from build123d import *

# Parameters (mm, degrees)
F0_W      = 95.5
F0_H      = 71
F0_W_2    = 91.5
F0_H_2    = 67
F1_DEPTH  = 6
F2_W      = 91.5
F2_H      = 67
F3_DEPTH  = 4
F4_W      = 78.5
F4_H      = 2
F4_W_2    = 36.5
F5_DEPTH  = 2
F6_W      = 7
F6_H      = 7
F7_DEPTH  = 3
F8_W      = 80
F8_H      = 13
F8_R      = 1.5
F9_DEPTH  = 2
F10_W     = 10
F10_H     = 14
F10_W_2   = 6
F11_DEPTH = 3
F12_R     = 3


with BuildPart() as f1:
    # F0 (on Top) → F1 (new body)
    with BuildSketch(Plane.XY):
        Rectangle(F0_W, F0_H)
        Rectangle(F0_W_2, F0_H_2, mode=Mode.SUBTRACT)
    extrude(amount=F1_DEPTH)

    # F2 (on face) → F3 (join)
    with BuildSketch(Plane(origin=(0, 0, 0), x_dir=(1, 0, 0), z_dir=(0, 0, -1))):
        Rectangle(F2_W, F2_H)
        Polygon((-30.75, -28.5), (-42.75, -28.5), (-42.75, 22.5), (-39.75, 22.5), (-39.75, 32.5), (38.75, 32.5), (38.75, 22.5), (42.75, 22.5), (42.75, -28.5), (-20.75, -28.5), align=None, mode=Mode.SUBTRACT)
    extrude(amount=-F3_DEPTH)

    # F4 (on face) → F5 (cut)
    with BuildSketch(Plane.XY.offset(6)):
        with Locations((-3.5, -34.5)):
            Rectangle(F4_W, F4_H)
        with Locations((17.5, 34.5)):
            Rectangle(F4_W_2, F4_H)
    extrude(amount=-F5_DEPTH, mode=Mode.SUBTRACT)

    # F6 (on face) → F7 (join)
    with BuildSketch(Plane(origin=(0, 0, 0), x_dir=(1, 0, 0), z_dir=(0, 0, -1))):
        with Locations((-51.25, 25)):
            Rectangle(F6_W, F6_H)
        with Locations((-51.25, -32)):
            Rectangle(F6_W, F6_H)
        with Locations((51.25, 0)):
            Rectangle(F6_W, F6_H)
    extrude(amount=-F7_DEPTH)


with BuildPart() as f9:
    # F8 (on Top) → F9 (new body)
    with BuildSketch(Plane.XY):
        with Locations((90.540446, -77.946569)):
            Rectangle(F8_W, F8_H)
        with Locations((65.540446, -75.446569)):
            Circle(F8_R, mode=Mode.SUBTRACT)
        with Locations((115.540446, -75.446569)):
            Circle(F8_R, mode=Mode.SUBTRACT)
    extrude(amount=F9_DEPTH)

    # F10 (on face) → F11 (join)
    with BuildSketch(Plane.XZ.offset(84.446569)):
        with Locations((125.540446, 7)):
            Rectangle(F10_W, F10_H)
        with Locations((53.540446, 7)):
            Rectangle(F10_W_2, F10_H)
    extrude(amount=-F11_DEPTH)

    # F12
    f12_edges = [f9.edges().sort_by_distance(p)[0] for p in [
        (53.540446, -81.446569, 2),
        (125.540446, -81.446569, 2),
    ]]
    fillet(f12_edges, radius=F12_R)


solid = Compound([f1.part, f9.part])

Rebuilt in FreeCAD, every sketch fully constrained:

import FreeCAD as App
import Part
import Sketcher

V = App.Vector
Q = App.Units.Quantity


def edges_at(feature, points):
    """Names of the edges that pass closest to the given points."""
    edges = feature.Shape.Edges
    near = lambda p: min(range(len(edges)), key=lambda i: edges[i].distToShape(Part.Vertex(*p))[0])
    return sorted({f"Edge{near(p) + 1}" for p in points})

doc = App.newDocument("Part")
body = doc.addObject("PartDesign::Body", "Body")

# Sketch on XY plane
sketch1 = doc.addObject("Sketcher::SketchObject", "Sketch")
body.addObject(sketch1)
sketch1.AttachmentSupport = (doc.XY_Plane, [""])
sketch1.MapMode = "FlatFace"
sketch1.addGeometry([
    Part.LineSegment(V(-48, 36, 0), V(-48, -36, 0)),  # 0
    Part.LineSegment(V(-48, -36, 0), V(48, -36, 0)),  # 1
    Part.LineSegment(V(48, -36, 0), V(48, 36, 0)),  # 2
    Part.LineSegment(V(48, 36, 0), V(-48, 36, 0)),  # 3
    Part.LineSegment(V(46, -34, 0), V(-46, -34, 0)),  # 4
    Part.LineSegment(V(-46, -34, 0), V(-46, 34, 0)),  # 5
    Part.LineSegment(V(-46, 34, 0), V(46, 34, 0)),  # 6
    Part.LineSegment(V(46, 34, 0), V(46, -34, 0)),  # 7
], False)
sketch1.addConstraint([
    Sketcher.Constraint("Coincident", 0, 2, 1, 1),
    Sketcher.Constraint("Coincident", 1, 2, 2, 1),
    Sketcher.Constraint("Coincident", 2, 2, 3, 1),
    Sketcher.Constraint("Coincident", 3, 2, 0, 1),
    Sketcher.Constraint("Coincident", 4, 2, 5, 1),
    Sketcher.Constraint("Coincident", 5, 2, 6, 1),
    Sketcher.Constraint("Coincident", 6, 2, 7, 1),
    Sketcher.Constraint("Coincident", 7, 2, 4, 1),
    Sketcher.Constraint("Vertical", 0),
    Sketcher.Constraint("Horizontal", 1),
    Sketcher.Constraint("Vertical", 2),
    Sketcher.Constraint("Horizontal", 3),
    Sketcher.Constraint("Horizontal", 4),
    Sketcher.Constraint("Vertical", 5),
    Sketcher.Constraint("Horizontal", 6),
    Sketcher.Constraint("Vertical", 7),
    Sketcher.Constraint("Symmetric", 0, 2, 2, 2, -1, 1),
    Sketcher.Constraint("Symmetric", 4, 2, 6, 2, -1, 1),
    Sketcher.Constraint("DistanceY", 0, 2, 0, 1, Q("71 mm")),
    Sketcher.Constraint("DistanceY", 5, 1, 5, 2, Q("67 mm")),
    Sketcher.Constraint("DistanceX", 1, 1, 1, 2, Q("95.5 mm")),
    Sketcher.Constraint("DistanceX", 4, 2, 4, 1, Q("91.5 mm")),
])
pad1 = doc.addObject("PartDesign::Pad", "Pad")
body.addObject(pad1)
pad1.Profile = sketch1
pad1.Length = 6

# Sketch on XY plane
sketch2 = doc.addObject("Sketcher::SketchObject", "Sketch001")
body.addObject(sketch2)
sketch2.AttachmentSupport = (doc.XY_Plane, [""])
sketch2.MapMode = "FlatFace"
sketch2.addGeometry([
    Part.LineSegment(V(-45.8, -33.5, 0), V(-45.8, 33.5, 0)),  # 0
    Part.LineSegment(V(-45.8, 33.5, 0), V(45.8, 33.5, 0)),  # 1
    Part.LineSegment(V(45.8, 33.5, 0), V(45.8, -33.5, 0)),  # 2
    Part.LineSegment(V(45.8, -33.5, 0), V(-45.8, -33.5, 0)),  # 3
    Part.LineSegment(V(42.8, 28.5, 0), V(-42.8, 28.5, 0)),  # 4
    Part.LineSegment(V(-42.8, 28.5, 0), V(-42.8, -22.5, 0)),  # 5
    Part.LineSegment(V(-42.8, -22.5, 0), V(-39.8, -22.5, 0)),  # 6
    Part.LineSegment(V(-39.8, -22.5, 0), V(-39.8, -32.5, 0)),  # 7
    Part.LineSegment(V(-39.8, -32.5, 0), V(38.8, -32.5, 0)),  # 8
    Part.LineSegment(V(38.8, -32.5, 0), V(38.8, -22.5, 0)),  # 9
    Part.LineSegment(V(38.8, -22.5, 0), V(42.8, -22.5, 0)),  # 10
    Part.LineSegment(V(42.8, -22.5, 0), V(42.8, 28.5, 0)),  # 11
], False)
sketch2.addConstraint([
    Sketcher.Constraint("Coincident", 0, 2, 1, 1),
    Sketcher.Constraint("Coincident", 1, 2, 2, 1),
    Sketcher.Constraint("Coincident", 2, 2, 3, 1),
    Sketcher.Constraint("Coincident", 3, 2, 0, 1),
    Sketcher.Constraint("Coincident", 4, 2, 5, 1),
    Sketcher.Constraint("Coincident", 5, 2, 6, 1),
    Sketcher.Constraint("Coincident", 6, 2, 7, 1),
    Sketcher.Constraint("Coincident", 7, 2, 8, 1),
    Sketcher.Constraint("Coincident", 8, 2, 9, 1),
    Sketcher.Constraint("Coincident", 9, 2, 10, 1),
    Sketcher.Constraint("Coincident", 10, 2, 11, 1),
    Sketcher.Constraint("Coincident", 11, 2, 4, 1),
    Sketcher.Constraint("Vertical", 0),
    Sketcher.Constraint("Horizontal", 1),
    Sketcher.Constraint("Vertical", 2),
    Sketcher.Constraint("Horizontal", 3),
    Sketcher.Constraint("Horizontal", 4),
    Sketcher.Constraint("Vertical", 5),
    Sketcher.Constraint("Horizontal", 6),
    Sketcher.Constraint("Vertical", 7),
    Sketcher.Constraint("Horizontal", 8),
    Sketcher.Constraint("Vertical", 9),
    Sketcher.Constraint("Horizontal", 10),
    Sketcher.Constraint("Vertical", 11),
    Sketcher.Constraint("Symmetric", 0, 2, 2, 2, -1, 1),
    Sketcher.Constraint("Symmetric", 5, 2, 10, 2, -2),
    Sketcher.Constraint("DistanceX", 6, 1, 6, 2, Q("3 mm")),
    Sketcher.Constraint("DistanceX", 10, 1, 10, 2, Q("4 mm")),
    Sketcher.Constraint("DistanceY", 0, 1, 0, 2, Q("67 mm")),
    Sketcher.Constraint("DistanceY", 5, 2, 5, 1, Q("51 mm")),
    Sketcher.Constraint("DistanceY", 7, 2, 7, 1, Q("10 mm")),
    Sketcher.Constraint("DistanceX", 1, 1, 1, 2, Q("91.5 mm")),
    Sketcher.Constraint("DistanceX", 4, 2, 4, 1, Q("85.5 mm")),
    Sketcher.Constraint("DistanceY", 4, 2, 0, 2, Q("5 mm")),
])
pad2 = doc.addObject("PartDesign::Pad", "Pad001")
body.addObject(pad2)
pad2.Profile = sketch2
pad2.Length = 4

# Sketch on XY plane
sketch3 = doc.addObject("Sketcher::SketchObject", "Sketch002")
body.addObject(sketch3)
sketch3.AttachmentSupport = (doc.XY_Plane, [""])
sketch3.MapMode = "FlatFace"
sketch3.AttachmentOffset = App.Placement(V(0, 0, 6), App.Rotation())
sketch3.addGeometry([
    Part.LineSegment(V(-42.8, -33.5, 0), V(-42.8, -35.5, 0)),  # 0
    Part.LineSegment(V(-42.8, -35.5, 0), V(35.8, -35.5, 0)),  # 1
    Part.LineSegment(V(35.8, -35.5, 0), V(35.8, -33.5, 0)),  # 2
    Part.LineSegment(V(35.8, -33.5, 0), V(-42.8, -33.5, 0)),  # 3
    Part.LineSegment(V(-0.8, 35.5, 0), V(-0.8, 33.5, 0)),  # 4
    Part.LineSegment(V(-0.8, 33.5, 0), V(35.8, 33.5, 0)),  # 5
    Part.LineSegment(V(35.8, 33.5, 0), V(35.8, 35.5, 0)),  # 6
    Part.LineSegment(V(35.8, 35.5, 0), V(-0.8, 35.5, 0)),  # 7
], False)
sketch3.addConstraint([
    Sketcher.Constraint("Coincident", 0, 2, 1, 1),
    Sketcher.Constraint("Coincident", 1, 2, 2, 1),
    Sketcher.Constraint("Coincident", 2, 2, 3, 1),
    Sketcher.Constraint("Coincident", 3, 2, 0, 1),
    Sketcher.Constraint("Coincident", 4, 2, 5, 1),
    Sketcher.Constraint("Coincident", 5, 2, 6, 1),
    Sketcher.Constraint("Coincident", 6, 2, 7, 1),
    Sketcher.Constraint("Coincident", 7, 2, 4, 1),
    Sketcher.Constraint("Vertical", 0),
    Sketcher.Constraint("Horizontal", 1),
    Sketcher.Constraint("Vertical", 2),
    Sketcher.Constraint("Horizontal", 3),
    Sketcher.Constraint("Vertical", 4),
    Sketcher.Constraint("Horizontal", 5),
    Sketcher.Constraint("Vertical", 6),
    Sketcher.Constraint("Horizontal", 7),
    Sketcher.Constraint("Symmetric", 2, 2, 5, 2, -1),
    Sketcher.Constraint("Equal", 2, 4),
    Sketcher.Constraint("DistanceY", 0, 2, 0, 1, Q("2 mm")),
    Sketcher.Constraint("DistanceX", 1, 1, 1, 2, Q("78.5 mm")),
    Sketcher.Constraint("DistanceX", 5, 1, 5, 2, Q("36.5 mm")),
    Sketcher.Constraint("DistanceY", 2, 2, 4, 2, Q("67 mm")),
    Sketcher.Constraint("DistanceX", 0, 2, -1, 1, Q("42.75 mm")),
])
pocket1 = doc.addObject("PartDesign::Pocket", "Pocket")
body.addObject(pocket1)
pocket1.Profile = sketch3
pocket1.Length = 2

# Sketch on XY plane
sketch4 = doc.addObject("Sketcher::SketchObject", "Sketch003")
body.addObject(sketch4)
sketch4.AttachmentSupport = (doc.XY_Plane, [""])
sketch4.MapMode = "FlatFace"
sketch4.addGeometry([
    Part.LineSegment(V(-55, -28, 0), V(-55, -22, 0)),  # 0
    Part.LineSegment(V(-55, -22, 0), V(-48, -22, 0)),  # 1
    Part.LineSegment(V(-48, -22, 0), V(-48, -28, 0)),  # 2
    Part.LineSegment(V(-48, -28, 0), V(-55, -28, 0)),  # 3
    Part.LineSegment(V(-55, 28, 0), V(-55, 36, 0)),  # 4
    Part.LineSegment(V(-55, 36, 0), V(-48, 36, 0)),  # 5
    Part.LineSegment(V(-48, 36, 0), V(-48, 28, 0)),  # 6
    Part.LineSegment(V(-48, 28, 0), V(-55, 28, 0)),  # 7
    Part.LineSegment(V(48, -4, 0), V(48, 4, 0)),  # 8
    Part.LineSegment(V(48, 4, 0), V(55, 4, 0)),  # 9
    Part.LineSegment(V(55, 4, 0), V(55, -4, 0)),  # 10
    Part.LineSegment(V(55, -4, 0), V(48, -4, 0)),  # 11
], False)
sketch4.addConstraint([
    Sketcher.Constraint("Coincident", 0, 2, 1, 1),
    Sketcher.Constraint("Coincident", 1, 2, 2, 1),
    Sketcher.Constraint("Coincident", 2, 2, 3, 1),
    Sketcher.Constraint("Coincident", 3, 2, 0, 1),
    Sketcher.Constraint("Coincident", 4, 2, 5, 1),
    Sketcher.Constraint("Coincident", 5, 2, 6, 1),
    Sketcher.Constraint("Coincident", 6, 2, 7, 1),
    Sketcher.Constraint("Coincident", 7, 2, 4, 1),
    Sketcher.Constraint("Coincident", 8, 2, 9, 1),
    Sketcher.Constraint("Coincident", 9, 2, 10, 1),
    Sketcher.Constraint("Coincident", 10, 2, 11, 1),
    Sketcher.Constraint("Coincident", 11, 2, 8, 1),
    Sketcher.Constraint("Vertical", 0),
    Sketcher.Constraint("Horizontal", 1),
    Sketcher.Constraint("Vertical", 2),
    Sketcher.Constraint("Horizontal", 3),
    Sketcher.Constraint("Vertical", 4),
    Sketcher.Constraint("Horizontal", 5),
    Sketcher.Constraint("Vertical", 6),
    Sketcher.Constraint("Horizontal", 7),
    Sketcher.Constraint("Vertical", 8),
    Sketcher.Constraint("Horizontal", 9),
    Sketcher.Constraint("Vertical", 10),
    Sketcher.Constraint("Horizontal", 11),
    Sketcher.Constraint("Symmetric", 2, 2, 6, 2, -1),
    Sketcher.Constraint("Vertical", 3, 2, 4, 2),
    Sketcher.Constraint("Equal", 7, 9),
    Sketcher.Constraint("Equal", 11, 0),
    Sketcher.Constraint("Equal", 2, 4),
    Sketcher.Constraint("Equal", 6, 8),
    Sketcher.Constraint("DistanceX", 1, 1, 1, 2, Q("7 mm")),
    Sketcher.Constraint("DistanceY", 0, 2, 4, 2, Q("57 mm")),
    Sketcher.Constraint("DistanceY", 1, 2, 8, 2, Q("25 mm")),
    Sketcher.Constraint("DistanceX", 1, 2, 8, 2, Q("95.5 mm")),
    Sketcher.Constraint("DistanceX", 0, 2, -1, 1, Q("54.75 mm")),
])
pad3 = doc.addObject("PartDesign::Pad", "Pad002")
body.addObject(pad3)
pad3.Profile = sketch4
pad3.Length = 3
body2 = doc.addObject("PartDesign::Body", "Body001")

# Sketch on XY plane
sketch5 = doc.addObject("Sketcher::SketchObject", "Sketch004")
body2.addObject(sketch5)
sketch5.AttachmentSupport = (doc.getObject("XY_Plane001"), [""])
sketch5.MapMode = "FlatFace"
sketch5.addGeometry([
    Part.LineSegment(V(50.5, -71.4, 0), V(50.5, -84.4, 0)),  # 0
    Part.LineSegment(V(50.5, -84.4, 0), V(130.5, -84.4, 0)),  # 1
    Part.LineSegment(V(130.5, -84.4, 0), V(130.5, -71.4, 0)),  # 2
    Part.LineSegment(V(130.5, -71.4, 0), V(50.5, -71.4, 0)),  # 3
    Part.Circle(V(65.5, -75.4, 0), V(0, 0, 1), 1.5),  # 4
    Part.Circle(V(115.5, -75.4, 0), V(0, 0, 1), 1.5),  # 5
], False)
sketch5.addConstraint([
    Sketcher.Constraint("Coincident", 0, 2, 1, 1),
    Sketcher.Constraint("Coincident", 1, 2, 2, 1),
    Sketcher.Constraint("Coincident", 2, 2, 3, 1),
    Sketcher.Constraint("Coincident", 3, 2, 0, 1),
    Sketcher.Constraint("Vertical", 0),
    Sketcher.Constraint("Horizontal", 1),
    Sketcher.Constraint("Vertical", 2),
    Sketcher.Constraint("Horizontal", 3),
    Sketcher.Constraint("Equal", 4, 5),
    Sketcher.Constraint("Horizontal", 4, 3, 5, 3),
    Sketcher.Constraint("Diameter", 4, Q("3 mm")),
    Sketcher.Constraint("DistanceX", 1, 1, 1, 2, Q("80 mm")),
    Sketcher.Constraint("DistanceY", 0, 2, 0, 1, Q("13 mm")),
    Sketcher.Constraint("DistanceX", 4, 3, 5, 3, Q("50 mm")),
    Sketcher.Constraint("DistanceX", 0, 2, 4, 3, Q("15 mm")),
    Sketcher.Constraint("DistanceY", 0, 2, 4, 3, Q("9 mm")),
    Sketcher.Constraint("DistanceY", 4, 3, -1, 1, Q("75.446569 mm")),
    Sketcher.Constraint("DistanceX", -1, 1, 4, 3, Q("65.540446 mm")),
])
pad4 = doc.addObject("PartDesign::Pad", "Pad003")
body2.addObject(pad4)
pad4.Profile = sketch5
pad4.Length = 2

# Sketch on XZ plane
sketch6 = doc.addObject("Sketcher::SketchObject", "Sketch005")
body2.addObject(sketch6)
sketch6.AttachmentSupport = (doc.getObject("XZ_Plane001"), [""])
sketch6.MapMode = "FlatFace"
sketch6.AttachmentOffset = App.Placement(V(0, 0, 84.446569), App.Rotation())
sketch6.addGeometry([
    Part.LineSegment(V(121, 14, 0), V(121, 0, 0)),  # 0
    Part.LineSegment(V(121, 0, 0), V(131, 0, 0)),  # 1
    Part.LineSegment(V(131, 0, 0), V(131, 14, 0)),  # 2
    Part.LineSegment(V(131, 14, 0), V(121, 14, 0)),  # 3
    Part.LineSegment(V(51, 14, 0), V(51, 0, 0)),  # 4
    Part.LineSegment(V(51, 0, 0), V(57, 0, 0)),  # 5
    Part.LineSegment(V(57, 0, 0), V(57, 14, 0)),  # 6
    Part.LineSegment(V(57, 14, 0), V(51, 14, 0)),  # 7
], False)
sketch6.addConstraint([
    Sketcher.Constraint("Coincident", 0, 2, 1, 1),
    Sketcher.Constraint("Coincident", 1, 2, 2, 1),
    Sketcher.Constraint("Coincident", 2, 2, 3, 1),
    Sketcher.Constraint("Coincident", 3, 2, 0, 1),
    Sketcher.Constraint("Coincident", 4, 2, 5, 1),
    Sketcher.Constraint("Coincident", 5, 2, 6, 1),
    Sketcher.Constraint("Coincident", 6, 2, 7, 1),
    Sketcher.Constraint("Coincident", 7, 2, 4, 1),
    Sketcher.Constraint("Vertical", 0),
    Sketcher.Constraint("Horizontal", 1),
    Sketcher.Constraint("Vertical", 2),
    Sketcher.Constraint("Horizontal", 3),
    Sketcher.Constraint("Vertical", 4),
    Sketcher.Constraint("Horizontal", 5),
    Sketcher.Constraint("Vertical", 6),
    Sketcher.Constraint("Horizontal", 7),
    Sketcher.Constraint("PointOnObject", 0, 2, -1),
    Sketcher.Constraint("PointOnObject", 4, 2, -1),
    Sketcher.Constraint("Horizontal", 3, 2, 6, 2),
    Sketcher.Constraint("DistanceX", 1, 1, 1, 2, Q("10 mm")),
    Sketcher.Constraint("DistanceX", 5, 1, 5, 2, Q("6 mm")),
    Sketcher.Constraint("DistanceY", 0, 2, 0, 1, Q("14 mm")),
    Sketcher.Constraint("DistanceX", 4, 2, 0, 2, Q("70 mm")),
    Sketcher.Constraint("DistanceX", -1, 1, 0, 2, Q("120.540446 mm")),
])
pad5 = doc.addObject("PartDesign::Pad", "Pad004")
body2.addObject(pad5)
pad5.Profile = sketch6
pad5.Length = 3
pad5.Reversed = True
doc.recompute()

fillet = doc.addObject("PartDesign::Fillet", "Fillet")
body2.addObject(fillet)
fillet.Base = (pad5, edges_at(pad5, [(53.54, -81.447, 2), (125.54, -81.447, 2)]))
fillet.Radius = 3

doc.recompute()
